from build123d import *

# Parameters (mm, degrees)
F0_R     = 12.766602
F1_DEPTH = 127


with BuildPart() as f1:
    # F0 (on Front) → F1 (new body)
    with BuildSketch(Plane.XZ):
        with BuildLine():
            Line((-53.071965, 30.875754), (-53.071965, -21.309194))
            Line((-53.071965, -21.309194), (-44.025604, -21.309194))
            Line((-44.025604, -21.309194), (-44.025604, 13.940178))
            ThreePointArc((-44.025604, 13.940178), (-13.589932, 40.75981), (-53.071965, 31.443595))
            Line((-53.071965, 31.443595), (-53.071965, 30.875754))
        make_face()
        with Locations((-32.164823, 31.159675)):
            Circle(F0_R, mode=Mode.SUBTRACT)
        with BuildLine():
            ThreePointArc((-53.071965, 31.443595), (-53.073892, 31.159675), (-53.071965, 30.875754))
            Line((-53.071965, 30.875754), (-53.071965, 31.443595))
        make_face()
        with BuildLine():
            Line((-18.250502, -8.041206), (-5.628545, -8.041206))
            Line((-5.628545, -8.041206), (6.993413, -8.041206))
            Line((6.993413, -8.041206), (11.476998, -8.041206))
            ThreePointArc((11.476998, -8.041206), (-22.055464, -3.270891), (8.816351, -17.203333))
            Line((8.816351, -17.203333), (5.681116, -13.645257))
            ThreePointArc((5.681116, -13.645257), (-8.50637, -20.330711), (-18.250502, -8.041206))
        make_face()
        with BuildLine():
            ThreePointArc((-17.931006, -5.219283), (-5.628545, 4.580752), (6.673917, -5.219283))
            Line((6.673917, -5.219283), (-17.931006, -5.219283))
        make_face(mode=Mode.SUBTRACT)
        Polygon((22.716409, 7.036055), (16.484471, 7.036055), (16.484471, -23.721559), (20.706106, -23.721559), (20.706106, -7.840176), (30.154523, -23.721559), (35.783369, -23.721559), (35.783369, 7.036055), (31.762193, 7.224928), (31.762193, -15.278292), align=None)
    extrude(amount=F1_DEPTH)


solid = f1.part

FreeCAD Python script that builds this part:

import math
import FreeCAD as App
import Part
import Sketcher
from FreeCAD import Vector
Q = App.Units.Quantity

doc = App.newDocument("Part")
body = doc.addObject("PartDesign::Body", "Body")
body.AllowCompound = True

sketch1 = doc.addObject("Sketcher::SketchObject", "Sketch")
body.addObject(sketch1)
sketch1.AttachmentSupport = (doc.XZ_Plane, [""])
sketch1.MapMode = "FlatFace"
sketch1.addGeometry([
    Part.LineSegment(Vector(-53.1, -21.3, 0), Vector(-44, -21.3, 0)),
    Part.LineSegment(Vector(-44, -21.3, 0), Vector(-44, 13.9, 0)),
    Part.ArcOfCircle(Part.Circle(Vector(-32.2, 31.2, 0), Vector(0, 0, 1), 20.9), math.radians(-125), math.radians(179)),
    Part.ArcOfCircle(Part.Circle(Vector(-32.2, 31.2, 0), Vector(0, 0, 1), 20.9), math.radians(179.22), math.radians(180.78)),
    Part.LineSegment(Vector(-53.1, 30.9, 0), Vector(-53.1, -21.3, 0)),
    Part.Circle(Vector(-32.2, 31.2, 0), Vector(0, 0, 1), 12.8),
    Part.LineSegment(Vector(-18.3, -8, 0), Vector(11.5, -8, 0)),
    Part.ArcOfCircle(Part.Circle(Vector(-5.6, -8, 0), Vector(0, 0, 1), 17.1), math.radians(0), math.radians(328)),
    Part.LineSegment(Vector(8.8, -17.2, 0), Vector(5.7, -13.6, 0)),
    Part.ArcOfCircle(Part.Circle(Vector(-5.6, -8, 0), Vector(0, 0, 1), 12.6), math.radians(180), math.radians(334)),
    Part.LineSegment(Vector(6.7, -5.2, 0), Vector(-17.9, -5.2, 0)),
    Part.ArcOfCircle(Part.Circle(Vector(-5.6, -8, 0), Vector(0, 0, 1), 12.6), math.radians(13), math.radians(167)),
    Part.LineSegment(Vector(22.7, 7, 0), Vector(16.5, 7, 0)),
    Part.LineSegment(Vector(16.5, 7, 0), Vector(16.5, -23.7, 0)),
    Part.LineSegment(Vector(16.5, -23.7, 0), Vector(20.7, -23.7, 0)),
    Part.LineSegment(Vector(20.7, -23.7, 0), Vector(20.7, -7.8, 0)),
    Part.LineSegment(Vector(20.7, -7.8, 0), Vector(30.2, -23.7, 0)),
    Part.LineSegment(Vector(30.2, -23.7, 0), Vector(35.8, -23.7, 0)),
    Part.LineSegment(Vector(35.8, -23.7, 0), Vector(35.8, 7, 0)),
    Part.LineSegment(Vector(35.8, 7, 0), Vector(31.8, 7.2, 0)),
    Part.LineSegment(Vector(31.8, 7.2, 0), Vector(31.8, -15.3, 0)),
    Part.LineSegment(Vector(31.8, -15.3, 0), Vector(22.7, 7, 0)),
], False)
sketch1.addConstraint([
    Sketcher.Constraint("Coincident", 0, 2, 1, 1),
    Sketcher.Constraint("Coincident", 1, 2, 2, 1),
    Sketcher.Constraint("Coincident", 2, 2, 3, 1),
    Sketcher.Constraint("Coincident", 3, 2, 4, 1),
    Sketcher.Constraint("Coincident", 4, 2, 0, 1),
    Sketcher.Constraint("Coincident", 6, 2, 7, 1),
    Sketcher.Constraint("Coincident", 7, 2, 8, 1),
    Sketcher.Constraint("Coincident", 8, 2, 9, 2),
    Sketcher.Constraint("Coincident", 9, 1, 6, 1),
    Sketcher.Constraint("Coincident", 10, 1, 11, 1),
    Sketcher.Constraint("Coincident", 11, 2, 10, 2),
    Sketcher.Constraint("Coincident", 12, 2, 13, 1),
    Sketcher.Constraint("Coincident", 13, 2, 14, 1),
    Sketcher.Constraint("Coincident", 14, 2, 15, 1),
    Sketcher.Constraint("Coincident", 15, 2, 16, 1),
    Sketcher.Constraint("Coincident", 16, 2, 17, 1),
    Sketcher.Constraint("Coincident", 17, 2, 18, 1),
    Sketcher.Constraint("Coincident", 18, 2, 19, 1),
    Sketcher.Constraint("Coincident", 19, 2, 20, 1),
    Sketcher.Constraint("Coincident", 20, 2, 21, 1),
    Sketcher.Constraint("Coincident", 21, 2, 12, 1),
    Sketcher.Constraint("Horizontal", 0),
    Sketcher.Constraint("Vertical", 1),
    Sketcher.Constraint("Vertical", 4),
    Sketcher.Constraint("Horizontal", 6),
    Sketcher.Constraint("Horizontal", 10),
    Sketcher.Constraint("Horizontal", 12),
    Sketcher.Constraint("Vertical", 13),
    Sketcher.Constraint("Horizontal", 14),
    Sketcher.Constraint("Vertical", 15),
    Sketcher.Constraint("Horizontal", 17),
    Sketcher.Constraint("Vertical", 18),
    Sketcher.Constraint("Vertical", 20),
    Sketcher.Constraint("Coincident", 5, 3, 2, 3),
    Sketcher.Constraint("Coincident", 9, 3, 7, 3),
    Sketcher.Constraint("Coincident", 11, 3, 7, 3),
    Sketcher.Constraint("Equal", 9, 11),
    Sketcher.Constraint("Horizontal", 2, 3, 3, 3),
    Sketcher.Constraint("Horizontal", 11, 3, 6, 2),
    Sketcher.Constraint("Horizontal", 14, 2, 16, 2),
    Sketcher.Constraint("Horizontal", 12, 2, 18, 2),
    Sketcher.Constraint("Vertical", 2, 2, 3, 2),
    Sketcher.Constraint("Radius", 2, 20.909069),
    Sketcher.Constraint("Diameter", 5, 25.533204),
    Sketcher.Constraint("DistanceX", 6, 1, 6, 2, 29.7275),
    Sketcher.Constraint("Radius", 3, 20.917116),
    Sketcher.Constraint("Radius", 7, 17.105543),
    Sketcher.Constraint("DistanceX", 0, 1, 0, 2, 9.046361),
    Sketcher.Constraint("DistanceY", 4, 2, 4, 1, 52.184948),
    Sketcher.Constraint("DistanceY", 20, 2, 20, 1, 22.50322),
    Sketcher.Constraint("DistanceX", 9, 1, -1, 1, 18.250502),
    Sketcher.Constraint("DistanceX", 8, 2, 10, 1, 0.992801),
    Sketcher.Constraint("DistanceY", 13, 2, 8, 2, 10.076302),
    Sketcher.Constraint("DistanceX", 13, 2, 17, 2, 19.298898),
    Sketcher.Constraint("Distance", 8, 4.74232),
    Sketcher.Constraint("Distance", 19, 4.025609),
    Sketcher.Constraint("Distance", 21, 24.078129),
    Sketcher.Constraint("DistanceX", 10, 2, 10, 1, 24.604923),
    Sketcher.Constraint("DistanceX", 12, 2, 12, 1, 6.231938),
    Sketcher.Constraint("DistanceX", 14, 1, 14, 2, 4.221635),
    Sketcher.Constraint("DistanceX", 17, 1, 17, 2, 5.628846),
    Sketcher.Constraint("DistanceY", 1, 1, 1, 2, 35.249372),
    Sketcher.Constraint("DistanceY", 13, 2, 13, 1, 30.757614),
    Sketcher.Constraint("DistanceY", 15, 1, 15, 2, 15.881383),
    Sketcher.Constraint("DistanceX", -1, 1, 12, 2, 16.484471),
    Sketcher.Constraint("DistanceY", 13, 2, -1, 1, 23.721559),
    Sketcher.Constraint("DistanceX", 3, 3, 7, 3, 26.528232),
    Sketcher.Constraint("DistanceY", 7, 3, 3, 3, 39.20088),
])
pad1 = doc.addObject("PartDesign::Pad", "Pad")
body.addObject(pad1)
pad1.Profile = sketch1
pad1.Length = Q("5 in")

doc.recompute()
